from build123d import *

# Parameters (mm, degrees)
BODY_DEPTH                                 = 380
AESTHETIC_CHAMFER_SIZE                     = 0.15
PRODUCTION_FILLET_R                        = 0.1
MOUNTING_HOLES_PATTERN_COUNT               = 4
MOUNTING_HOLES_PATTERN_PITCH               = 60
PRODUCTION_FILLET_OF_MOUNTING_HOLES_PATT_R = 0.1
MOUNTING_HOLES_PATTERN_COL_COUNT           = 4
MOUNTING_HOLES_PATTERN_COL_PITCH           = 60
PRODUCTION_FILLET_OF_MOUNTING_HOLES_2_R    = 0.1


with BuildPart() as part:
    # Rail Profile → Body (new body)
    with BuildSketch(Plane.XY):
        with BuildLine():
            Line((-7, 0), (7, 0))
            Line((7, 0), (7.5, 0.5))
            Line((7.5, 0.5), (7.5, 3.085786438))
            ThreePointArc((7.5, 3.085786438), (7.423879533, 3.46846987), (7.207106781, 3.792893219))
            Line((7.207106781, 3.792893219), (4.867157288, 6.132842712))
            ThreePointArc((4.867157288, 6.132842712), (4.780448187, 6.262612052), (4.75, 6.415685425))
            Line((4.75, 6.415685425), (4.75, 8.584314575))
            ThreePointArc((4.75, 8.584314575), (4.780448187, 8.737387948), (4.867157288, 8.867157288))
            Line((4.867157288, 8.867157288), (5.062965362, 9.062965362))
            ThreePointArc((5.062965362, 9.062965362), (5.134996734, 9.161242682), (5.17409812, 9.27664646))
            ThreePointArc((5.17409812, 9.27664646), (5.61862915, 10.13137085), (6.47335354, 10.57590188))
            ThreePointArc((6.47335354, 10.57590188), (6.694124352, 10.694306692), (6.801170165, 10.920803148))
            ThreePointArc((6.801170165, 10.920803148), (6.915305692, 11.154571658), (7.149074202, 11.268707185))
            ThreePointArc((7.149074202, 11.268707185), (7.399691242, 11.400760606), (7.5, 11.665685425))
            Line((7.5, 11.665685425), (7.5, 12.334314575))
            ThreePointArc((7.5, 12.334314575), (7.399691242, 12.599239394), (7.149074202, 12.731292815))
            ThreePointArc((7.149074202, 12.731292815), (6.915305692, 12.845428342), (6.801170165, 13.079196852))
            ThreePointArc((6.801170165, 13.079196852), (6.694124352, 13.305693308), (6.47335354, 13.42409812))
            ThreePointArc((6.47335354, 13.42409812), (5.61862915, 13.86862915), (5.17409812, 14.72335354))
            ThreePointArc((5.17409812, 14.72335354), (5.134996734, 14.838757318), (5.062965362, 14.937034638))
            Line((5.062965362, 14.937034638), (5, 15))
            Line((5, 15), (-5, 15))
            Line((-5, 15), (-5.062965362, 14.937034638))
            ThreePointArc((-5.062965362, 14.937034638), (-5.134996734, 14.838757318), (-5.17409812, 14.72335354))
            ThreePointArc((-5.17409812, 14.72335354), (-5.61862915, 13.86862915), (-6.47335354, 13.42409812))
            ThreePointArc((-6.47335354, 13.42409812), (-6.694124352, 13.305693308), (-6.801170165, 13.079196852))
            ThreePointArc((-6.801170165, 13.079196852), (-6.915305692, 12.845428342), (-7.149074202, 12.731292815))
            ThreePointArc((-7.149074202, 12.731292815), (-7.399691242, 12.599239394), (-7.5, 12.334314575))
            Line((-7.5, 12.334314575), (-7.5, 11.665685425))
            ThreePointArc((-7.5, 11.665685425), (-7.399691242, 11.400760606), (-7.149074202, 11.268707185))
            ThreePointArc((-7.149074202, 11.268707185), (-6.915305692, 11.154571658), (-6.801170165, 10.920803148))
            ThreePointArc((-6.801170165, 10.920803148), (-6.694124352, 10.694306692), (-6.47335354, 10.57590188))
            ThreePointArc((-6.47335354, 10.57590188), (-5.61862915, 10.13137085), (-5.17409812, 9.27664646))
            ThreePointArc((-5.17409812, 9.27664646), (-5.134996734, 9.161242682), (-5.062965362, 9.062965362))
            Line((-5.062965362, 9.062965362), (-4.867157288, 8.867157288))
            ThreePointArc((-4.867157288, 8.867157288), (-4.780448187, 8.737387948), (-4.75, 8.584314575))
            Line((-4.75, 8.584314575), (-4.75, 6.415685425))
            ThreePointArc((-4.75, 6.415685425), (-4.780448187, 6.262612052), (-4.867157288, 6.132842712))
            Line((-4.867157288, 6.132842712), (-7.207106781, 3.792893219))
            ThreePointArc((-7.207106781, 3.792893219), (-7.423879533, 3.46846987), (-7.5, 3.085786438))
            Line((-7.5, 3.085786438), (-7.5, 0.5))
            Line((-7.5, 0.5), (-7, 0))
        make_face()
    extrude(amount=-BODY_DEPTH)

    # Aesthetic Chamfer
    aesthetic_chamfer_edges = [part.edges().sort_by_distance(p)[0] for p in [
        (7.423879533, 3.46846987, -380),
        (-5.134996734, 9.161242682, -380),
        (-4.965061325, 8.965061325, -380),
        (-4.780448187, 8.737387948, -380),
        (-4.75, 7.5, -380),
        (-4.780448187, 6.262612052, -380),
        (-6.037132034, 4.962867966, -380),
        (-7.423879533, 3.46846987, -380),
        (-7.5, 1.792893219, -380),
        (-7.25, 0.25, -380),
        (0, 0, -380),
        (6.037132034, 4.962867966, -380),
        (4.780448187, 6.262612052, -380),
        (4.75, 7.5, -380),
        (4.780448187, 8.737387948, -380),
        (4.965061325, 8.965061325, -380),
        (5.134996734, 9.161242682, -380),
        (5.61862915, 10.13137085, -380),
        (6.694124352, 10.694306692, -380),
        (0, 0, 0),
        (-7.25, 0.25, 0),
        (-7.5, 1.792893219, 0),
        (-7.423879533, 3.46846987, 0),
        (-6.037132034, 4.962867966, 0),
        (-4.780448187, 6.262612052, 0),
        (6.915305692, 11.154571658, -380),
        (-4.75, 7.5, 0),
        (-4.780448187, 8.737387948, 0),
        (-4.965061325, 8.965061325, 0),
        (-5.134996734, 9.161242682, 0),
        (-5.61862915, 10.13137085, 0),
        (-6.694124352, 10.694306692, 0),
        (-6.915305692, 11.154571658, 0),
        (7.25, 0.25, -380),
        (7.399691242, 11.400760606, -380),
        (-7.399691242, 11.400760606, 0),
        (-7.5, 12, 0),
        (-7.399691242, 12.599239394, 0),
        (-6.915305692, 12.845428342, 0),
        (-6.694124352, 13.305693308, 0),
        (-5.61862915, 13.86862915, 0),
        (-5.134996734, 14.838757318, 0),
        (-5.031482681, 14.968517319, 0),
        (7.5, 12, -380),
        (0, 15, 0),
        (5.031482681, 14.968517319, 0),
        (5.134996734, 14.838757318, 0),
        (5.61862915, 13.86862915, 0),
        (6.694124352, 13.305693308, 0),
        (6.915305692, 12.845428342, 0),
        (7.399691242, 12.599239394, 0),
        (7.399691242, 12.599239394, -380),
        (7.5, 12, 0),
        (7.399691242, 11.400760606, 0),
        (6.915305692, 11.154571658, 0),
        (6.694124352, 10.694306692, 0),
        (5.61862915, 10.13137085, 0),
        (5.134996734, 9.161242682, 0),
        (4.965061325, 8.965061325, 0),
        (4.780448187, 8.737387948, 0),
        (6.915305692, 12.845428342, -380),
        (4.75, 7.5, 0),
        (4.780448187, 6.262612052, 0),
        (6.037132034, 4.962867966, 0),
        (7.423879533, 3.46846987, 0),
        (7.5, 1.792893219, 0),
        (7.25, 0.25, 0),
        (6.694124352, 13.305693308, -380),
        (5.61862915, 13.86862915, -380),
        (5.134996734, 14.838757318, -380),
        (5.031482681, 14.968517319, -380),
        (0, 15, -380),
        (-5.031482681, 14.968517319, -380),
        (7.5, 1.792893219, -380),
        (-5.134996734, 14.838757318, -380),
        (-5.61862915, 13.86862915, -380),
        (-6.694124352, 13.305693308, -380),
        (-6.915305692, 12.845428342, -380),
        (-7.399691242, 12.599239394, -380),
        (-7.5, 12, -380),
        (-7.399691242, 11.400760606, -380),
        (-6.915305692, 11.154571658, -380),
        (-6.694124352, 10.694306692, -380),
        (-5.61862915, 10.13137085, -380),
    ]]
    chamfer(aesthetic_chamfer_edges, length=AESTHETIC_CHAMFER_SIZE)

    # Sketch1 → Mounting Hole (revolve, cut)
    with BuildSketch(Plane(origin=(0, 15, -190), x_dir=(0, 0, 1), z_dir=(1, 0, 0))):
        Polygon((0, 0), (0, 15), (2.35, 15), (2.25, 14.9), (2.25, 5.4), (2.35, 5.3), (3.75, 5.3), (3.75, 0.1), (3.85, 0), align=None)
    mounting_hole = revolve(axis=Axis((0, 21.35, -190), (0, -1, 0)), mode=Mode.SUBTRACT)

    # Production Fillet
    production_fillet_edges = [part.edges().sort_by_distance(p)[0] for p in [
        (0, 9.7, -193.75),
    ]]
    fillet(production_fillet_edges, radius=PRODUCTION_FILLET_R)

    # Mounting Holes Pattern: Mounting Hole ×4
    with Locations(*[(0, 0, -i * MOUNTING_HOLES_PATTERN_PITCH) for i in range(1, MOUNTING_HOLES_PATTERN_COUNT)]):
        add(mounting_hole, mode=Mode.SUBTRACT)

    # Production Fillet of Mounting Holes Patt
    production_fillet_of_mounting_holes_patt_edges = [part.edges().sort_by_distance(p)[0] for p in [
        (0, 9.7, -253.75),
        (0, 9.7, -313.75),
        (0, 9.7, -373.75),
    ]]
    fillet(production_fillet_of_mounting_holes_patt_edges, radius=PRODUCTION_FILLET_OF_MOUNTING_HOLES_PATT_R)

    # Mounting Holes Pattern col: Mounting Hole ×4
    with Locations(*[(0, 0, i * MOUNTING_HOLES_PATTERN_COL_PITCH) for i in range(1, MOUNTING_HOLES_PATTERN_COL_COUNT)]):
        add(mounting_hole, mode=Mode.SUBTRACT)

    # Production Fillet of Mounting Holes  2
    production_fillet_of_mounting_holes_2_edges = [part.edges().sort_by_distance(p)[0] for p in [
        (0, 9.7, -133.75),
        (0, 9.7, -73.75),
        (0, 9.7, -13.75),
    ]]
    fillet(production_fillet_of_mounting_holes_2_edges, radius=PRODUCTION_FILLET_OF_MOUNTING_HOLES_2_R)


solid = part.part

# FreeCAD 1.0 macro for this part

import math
import FreeCAD as App
import Part
import Sketcher
from FreeCAD import Vector
Q = App.Units.Quantity


def edges_at(feature, points):
    """Names of the edges that pass closest to the given points."""
    edges = feature.Shape.Edges
    near = lambda p: min(range(len(edges)), key=lambda i: edges[i].distToShape(Part.Vertex(*p))[0])
    return sorted({f"Edge{near(p) + 1}" for p in points})


def add_polygon(sketch, points):
    """Adds a closed chain of lines whose ends are joined by coincident constraints."""
    first, n = sketch.GeometryCount, len(points)
    for a, b in zip(points, points[1:] + points[:1]):
        sketch.addGeometry(Part.LineSegment(App.Vector(*a, 0), App.Vector(*b, 0)), False)
    for i in range(n):
        sketch.addConstraint(Sketcher.Constraint("Coincident", first + i, 2, first + (i + 1) % n, 1))

doc = App.newDocument("Part")
params = doc.addObject("Spreadsheet::Sheet", "Params")
for row, (alias, value) in enumerate([
    ("sketch1_radius", "1 mm"),
    ("sketch1_radius2", "0.4 mm"),
    ("sketch1_radius3", "1.6 mm"),
    ("sketch1_width", "14 mm"),
    ("sketch1_width2", "10 mm"),
    ("pad1_length", "380 mm"),
    ("chamfer_size", "0.15 mm"),
    ("sketch2_width", "15 mm"),
    ("sketch2_width2", "5.2 mm"),
    ("sketch2_width3", "9.5 mm"),
    ("sketch2_height", "1.4 mm"),
    ("sketch2_height2", "3.85 mm"),
    ("groove_angle", "360 deg"),
    ("fillet_radius", "0.1 mm"),
    ("linearpattern_pitch", "60 mm"),
    ("fillet2_radius", "0.1 mm"),
    ("linearpattern2_pitch", "60 mm"),
    ("fillet3_radius", "0.1 mm"),
], start=1):
    params.set(f"A{row}", alias)
    params.set(f"B{row}", "=" + value)
    params.setAlias(f"B{row}", alias)

body = doc.addObject("PartDesign::Body", "Body")

sketch1 = doc.addObject("Sketcher::SketchObject", "Sketch")
body.addObject(sketch1)
sketch1.AttachmentSupport = (doc.XY_Plane, [""])
sketch1.MapMode = "FlatFace"
sketch1.addGeometry(Part.LineSegment(Vector(-7, 0, 0), Vector(7, 0, 0)), False)
sketch1.addGeometry(Part.LineSegment(Vector(7, 0, 0), Vector(7.5, 0.5, 0)), False)
sketch1.addGeometry(Part.LineSegment(Vector(7.5, 0.5, 0), Vector(7.5, 3.085786, 0)), False)
sketch1.addGeometry(Part.ArcOfCircle(Part.Circle(Vector(6.5, 3.085786, 0), Vector(0, 0, 1), 1), math.radians(0), math.radians(45)), False)
sketch1.addGeometry(Part.LineSegment(Vector(7.207107, 3.792893, 0), Vector(4.867157, 6.132843, 0)), False)
sketch1.addGeometry(Part.ArcOfCircle(Part.Circle(Vector(5.15, 6.415685, 0), Vector(0, 0, 1), 0.4), math.radians(180), math.radians(225)), False)
sketch1.addGeometry(Part.LineSegment(Vector(4.75, 6.415685, 0), Vector(4.75, 8.584315, 0)), False)
sketch1.addGeometry(Part.ArcOfCircle(Part.Circle(Vector(5.15, 8.584315, 0), Vector(0, 0, 1), 0.4), math.radians(135), math.radians(180)), False)
sketch1.addGeometry(Part.LineSegment(Vector(4.867157, 8.867157, 0), Vector(5.062965, 9.062965, 0)), False)
sketch1.addGeometry(Part.ArcOfCircle(Part.Circle(Vector(4.780123, 9.345808, 0), Vector(0, 0, 1), 0.4), math.radians(-45), math.radians(-9.956709)), False)
sketch1.addGeometry(Part.ArcOfCircle(Part.Circle(Vector(6.75, 9, 0), Vector(0, 0, 1), 1.6), math.radians(99.956709), math.radians(170.043291)), False)
sketch1.addGeometry(Part.ArcOfCircle(Part.Circle(Vector(6.404192, 10.969877, 0), Vector(0, 0, 1), 0.4), math.radians(-80.043291), math.radians(-7.047116)), False)
sketch1.addGeometry(Part.ArcOfCircle(Part.Circle(Vector(7.198148, 10.871729, 0), Vector(0, 0, 1), 0.4), math.radians(97.047116), math.radians(172.952884)), False)
sketch1.addGeometry(Part.ArcOfCircle(Part.Circle(Vector(7.1, 11.665685, 0), Vector(0, 0, 1), 0.4), math.radians(-82.952884), math.radians(0)), False)
sketch1.addGeometry(Part.LineSegment(Vector(7.5, 11.665685, 0), Vector(7.5, 12.334315, 0)), False)
sketch1.addGeometry(Part.ArcOfCircle(Part.Circle(Vector(7.1, 12.334315, 0), Vector(0, 0, 1), 0.4), math.radians(0), math.radians(82.952884)), False)
sketch1.addGeometry(Part.ArcOfCircle(Part.Circle(Vector(7.198148, 13.128271, 0), Vector(0, 0, 1), 0.4), math.radians(-172.952884), math.radians(-97.047116)), False)
sketch1.addGeometry(Part.ArcOfCircle(Part.Circle(Vector(6.404192, 13.030123, 0), Vector(0, 0, 1), 0.4), math.radians(7.047116), math.radians(80.043291)), False)
sketch1.addGeometry(Part.ArcOfCircle(Part.Circle(Vector(6.75, 15, 0), Vector(0, 0, 1), 1.6), math.radians(-170.043291), math.radians(-99.956709)), False)
sketch1.addGeometry(Part.ArcOfCircle(Part.Circle(Vector(4.780123, 14.654192, 0), Vector(0, 0, 1), 0.4), math.radians(9.956709), math.radians(45)), False)
sketch1.addGeometry(Part.LineSegment(Vector(5.062965, 14.937035, 0), Vector(5, 15, 0)), False)
sketch1.addGeometry(Part.LineSegment(Vector(5, 15, 0), Vector(-5, 15, 0)), False)
sketch1.addGeometry(Part.LineSegment(Vector(-5, 15, 0), Vector(-5.062965, 14.937035, 0)), False)
sketch1.addGeometry(Part.ArcOfCircle(Part.Circle(Vector(-4.780123, 14.654192, 0), Vector(0, 0, 1), 0.4), math.radians(135), math.radians(170.043291)), False)
sketch1.addGeometry(Part.ArcOfCircle(Part.Circle(Vector(-6.75, 15, 0), Vector(0, 0, 1), 1.6), math.radians(-80.043291), math.radians(-9.956709)), False)
sketch1.addGeometry(Part.ArcOfCircle(Part.Circle(Vector(-6.404192, 13.030123, 0), Vector(0, 0, 1), 0.4), math.radians(99.956709), math.radians(172.952884)), False)
sketch1.addGeometry(Part.ArcOfCircle(Part.Circle(Vector(-7.198148, 13.128271, 0), Vector(0, 0, 1), 0.4), math.radians(-82.952884), math.radians(-7.047116)), False)
sketch1.addGeometry(Part.ArcOfCircle(Part.Circle(Vector(-7.1, 12.334315, 0), Vector(0, 0, 1), 0.4), math.radians(97.047116), math.radians(180)), False)
sketch1.addGeometry(Part.LineSegment(Vector(-7.5, 12.334315, 0), Vector(-7.5, 11.665685, 0)), False)
sketch1.addGeometry(Part.ArcOfCircle(Part.Circle(Vector(-7.1, 11.665685, 0), Vector(0, 0, 1), 0.4), math.radians(180), math.radians(262.952884)), False)
sketch1.addGeometry(Part.ArcOfCircle(Part.Circle(Vector(-7.198148, 10.871729, 0), Vector(0, 0, 1), 0.4), math.radians(7.047116), math.radians(82.952884)), False)
sketch1.addGeometry(Part.ArcOfCircle(Part.Circle(Vector(-6.404192, 10.969877, 0), Vector(0, 0, 1), 0.4), math.radians(-172.952884), math.radians(-99.956709)), False)
sketch1.addGeometry(Part.ArcOfCircle(Part.Circle(Vector(-6.75, 9, 0), Vector(0, 0, 1), 1.6), math.radians(9.956709), math.radians(80.043291)), False)
sketch1.addGeometry(Part.ArcOfCircle(Part.Circle(Vector(-4.780123, 9.345808, 0), Vector(0, 0, 1), 0.4), math.radians(-170.043291), math.radians(-135)), False)
sketch1.addGeometry(Part.LineSegment(Vector(-5.062965, 9.062965, 0), Vector(-4.867157, 8.867157, 0)), False)
sketch1.addGeometry(Part.ArcOfCircle(Part.Circle(Vector(-5.15, 8.584315, 0), Vector(0, 0, 1), 0.4), math.radians(0), math.radians(45)), False)
sketch1.addGeometry(Part.LineSegment(Vector(-4.75, 8.584315, 0), Vector(-4.75, 6.415685, 0)), False)
sketch1.addGeometry(Part.ArcOfCircle(Part.Circle(Vector(-5.15, 6.415685, 0), Vector(0, 0, 1), 0.4), math.radians(-45), math.radians(0)), False)
sketch1.addGeometry(Part.LineSegment(Vector(-4.867157, 6.132843, 0), Vector(-7.207107, 3.792893, 0)), False)
sketch1.addGeometry(Part.ArcOfCircle(Part.Circle(Vector(-6.5, 3.085786, 0), Vector(0, 0, 1), 1), math.radians(135), math.radians(180)), False)
sketch1.addGeometry(Part.LineSegment(Vector(-7.5, 3.085786, 0), Vector(-7.5, 0.5, 0)), False)
sketch1.addGeometry(Part.LineSegment(Vector(-7.5, 0.5, 0), Vector(-7, 0, 0)), False)
sketch1.addConstraint(Sketcher.Constraint("Coincident", 0, 2, 1, 1))
sketch1.addConstraint(Sketcher.Constraint("Coincident", 1, 2, 2, 1))
sketch1.addConstraint(Sketcher.Constraint("Tangent", 2, 2, 3, 1))
sketch1.addConstraint(Sketcher.Constraint("Tangent", 3, 2, 4, 1))
sketch1.addConstraint(Sketcher.Constraint("Tangent", 4, 2, 5, 2))
sketch1.addConstraint(Sketcher.Constraint("Tangent", 5, 1, 6, 1))
sketch1.addConstraint(Sketcher.Constraint("Tangent", 6, 2, 7, 2))
sketch1.addConstraint(Sketcher.Constraint("Tangent", 7, 1, 8, 1))
sketch1.addConstraint(Sketcher.Constraint("Tangent", 8, 2, 9, 1))
sketch1.addConstraint(Sketcher.Constraint("Tangent", 9, 2, 10, 2))
sketch1.addConstraint(Sketcher.Constraint("Tangent", 10, 1, 11, 1))
sketch1.addConstraint(Sketcher.Constraint("Tangent", 11, 2, 12, 2))
sketch1.addConstraint(Sketcher.Constraint("Tangent", 12, 1, 13, 1))
sketch1.addConstraint(Sketcher.Constraint("Tangent", 13, 2, 14, 1))
sketch1.addConstraint(Sketcher.Constraint("Tangent", 14, 2, 15, 1))
sketch1.addConstraint(Sketcher.Constraint("Tangent", 15, 2, 16, 2))
sketch1.addConstraint(Sketcher.Constraint("Tangent", 16, 1, 17, 1))
sketch1.addConstraint(Sketcher.Constraint("Tangent", 17, 2, 18, 2))
sketch1.addConstraint(Sketcher.Constraint("Tangent", 18, 1, 19, 1))
sketch1.addConstraint(Sketcher.Constraint("Tangent", 19, 2, 20, 1))
sketch1.addConstraint(Sketcher.Constraint("Coincident", 20, 2, 21, 1))
sketch1.addConstraint(Sketcher.Constraint("Coincident", 21, 2, 22, 1))
sketch1.addConstraint(Sketcher.Constraint("Tangent", 22, 2, 23, 1))
sketch1.addConstraint(Sketcher.Constraint("Tangent", 23, 2, 24, 2))
sketch1.addConstraint(Sketcher.Constraint("Tangent", 24, 1, 25, 1))
sketch1.addConstraint(Sketcher.Constraint("Tangent", 25, 2, 26, 2))
sketch1.addConstraint(Sketcher.Constraint("Tangent", 26, 1, 27, 1))
sketch1.addConstraint(Sketcher.Constraint("Tangent", 27, 2, 28, 1))
sketch1.addConstraint(Sketcher.Constraint("Tangent", 28, 2, 29, 1))
sketch1.addConstraint(Sketcher.Constraint("Tangent", 29, 2, 30, 2))
sketch1.addConstraint(Sketcher.Constraint("Tangent", 30, 1, 31, 1))
sketch1.addConstraint(Sketcher.Constraint("Tangent", 31, 2, 32, 2))
sketch1.addConstraint(Sketcher.Constraint("Tangent", 32, 1, 33, 1))
sketch1.addConstraint(Sketcher.Constraint("Tangent", 33, 2, 34, 1))
sketch1.addConstraint(Sketcher.Constraint("Tangent", 34, 2, 35, 2))
sketch1.addConstraint(Sketcher.Constraint("Tangent", 35, 1, 36, 1))
sketch1.addConstraint(Sketcher.Constraint("Tangent", 36, 2, 37, 2))
sketch1.addConstraint(Sketcher.Constraint("Tangent", 37, 1, 38, 1))
sketch1.addConstraint(Sketcher.Constraint("Tangent", 38, 2, 39, 1))
sketch1.addConstraint(Sketcher.Constraint("Tangent", 39, 2, 40, 1))
sketch1.addConstraint(Sketcher.Constraint("Coincident", 40, 2, 41, 1))
sketch1.addConstraint(Sketcher.Constraint("Coincident", 41, 2, 0, 1))
sketch1.addConstraint(Sketcher.Constraint("Horizontal", 0))
sketch1.addConstraint(Sketcher.Constraint("Vertical", 2))
sketch1.addConstraint(Sketcher.Constraint("Vertical", 6))
sketch1.addConstraint(Sketcher.Constraint("Vertical", 14))
sketch1.addConstraint(Sketcher.Constraint("Horizontal", 21))
sketch1.addConstraint(Sketcher.Constraint("Vertical", 28))
sketch1.addConstraint(Sketcher.Constraint("Vertical", 36))
sketch1.addConstraint(Sketcher.Constraint("Vertical", 40))
sketch1.addConstraint(Sketcher.Constraint("Equal", 5, 7))
sketch1.addConstraint(Sketcher.Constraint("Equal", 7, 9))
sketch1.addConstraint(Sketcher.Constraint("Equal", 9, 11))
sketch1.addConstraint(Sketcher.Constraint("Equal", 11, 12))
sketch1.addConstraint(Sketcher.Constraint("Equal", 12, 13))
sketch1.addConstraint(Sketcher.Constraint("Equal", 13, 15))
sketch1.addConstraint(Sketcher.Constraint("Equal", 15, 16))
sketch1.addConstraint(Sketcher.Constraint("Equal", 16, 17))
sketch1.addConstraint(Sketcher.Constraint("Equal", 10, 18))
sketch1.addConstraint(Sketcher.Constraint("Equal", 17, 19))
sketch1.addConstraint(Sketcher.Constraint("Equal", 19, 23))
sketch1.addConstraint(Sketcher.Constraint("Equal", 18, 24))
sketch1.addConstraint(Sketcher.Constraint("Equal", 23, 25))
sketch1.addConstraint(Sketcher.Constraint("Equal", 25, 26))
sketch1.addConstraint(Sketcher.Constraint("Equal", 26, 27))
sketch1.addConstraint(Sketcher.Constraint("Equal", 27, 29))
sketch1.addConstraint(Sketcher.Constraint("Equal", 29, 30))
sketch1.addConstraint(Sketcher.Constraint("Equal", 30, 31))
sketch1.addConstraint(Sketcher.Constraint("Equal", 24, 32))
sketch1.addConstraint(Sketcher.Constraint("Equal", 31, 33))
sketch1.addConstraint(Sketcher.Constraint("Equal", 33, 35))
sketch1.addConstraint(Sketcher.Constraint("Equal", 35, 37))
sketch1.addConstraint(Sketcher.Constraint("Equal", 3, 39))
sketch1.addConstraint(Sketcher.Constraint("Symmetric", 0, 2, 41, 2, -1, 1))
sketch1.addConstraint(Sketcher.Constraint("Symmetric", 19, 3, 23, 3, -2))
sketch1.addConstraint(Sketcher.Constraint("Symmetric", 17, 3, 25, 3, -2))
sketch1.addConstraint(Sketcher.Constraint("Symmetric", 15, 3, 27, 3, -2))
sketch1.addConstraint(Sketcher.Constraint("Symmetric", 12, 3, 30, 3, -2))
sketch1.addConstraint(Sketcher.Constraint("Symmetric", 10, 3, 32, 3, -2))
sketch1.addConstraint(Sketcher.Constraint("Symmetric", 7, 3, 35, 3, -2))
sketch1.addConstraint(Sketcher.Constraint("Symmetric", 3, 3, 39, 3, -2))
sketch1.addConstraint(Sketcher.Constraint("Perpendicular", 1, 4))
sketch1.addConstraint(Sketcher.Constraint("Perpendicular", 4, 8))
sketch1.addConstraint(Sketcher.Constraint("Perpendicular", 8, 20))
sketch1.addConstraint(Sketcher.Constraint("Perpendicular", 20, 22))
sketch1.addConstraint(Sketcher.Constraint("Perpendicular", 22, 34))
sketch1.addConstraint(Sketcher.Constraint("Perpendicular", 34, 38))
sketch1.addConstraint(Sketcher.Constraint("Perpendicular", 38, 41))
sketch1.addConstraint(Sketcher.Constraint("Horizontal", 9, 3, 33, 3))
sketch1.addConstraint(Sketcher.Constraint("Horizontal", 24, 3, 20, 2))
sketch1.addConstraint(Sketcher.Constraint("Vertical", 12, 3, 16, 3))
sketch1.addConstraint(Sketcher.Constraint("Vertical", 11, 3, 17, 3))
sketch1.addConstraint(Sketcher.Constraint("Vertical", 10, 3, 18, 3))
sketch1.addConstraint(Sketcher.Constraint("Vertical", 9, 3, 19, 3))
sketch1.addConstraint(Sketcher.Constraint("Vertical", 2, 2, 13, 2))
sketch1.addConstraint(Sketcher.Constraint("Radius", 3, Q("1 mm")))
sketch1.addConstraint(Sketcher.Constraint("Radius", 5, Q("0.4 mm")))
sketch1.addConstraint(Sketcher.Constraint("Radius", 10, Q("1.6 mm")))
sketch1.addConstraint(Sketcher.Constraint("DistanceX", 0, 1, 0, 2, Q("14 mm")))
sketch1.addConstraint(Sketcher.Constraint("DistanceX", 21, 2, 21, 1, Q("10 mm")))
sketch1.addConstraint(Sketcher.Constraint("DistanceY", -1, 1, 10, 3, Q("9 mm")))
sketch1.addConstraint(Sketcher.Constraint("DistanceY", -1, 1, 18, 3, Q("15 mm")))
sketch1.addConstraint(Sketcher.Constraint("DistanceX", -1, 1, 3, 3, Q("6.5 mm")))
sketch1.addConstraint(Sketcher.Constraint("DistanceX", -1, 1, 5, 3, Q("5.15 mm")))
sketch1.addConstraint(Sketcher.Constraint("DistanceX", -1, 1, 10, 3, Q("6.75 mm")))
sketch1.addConstraint(Sketcher.Constraint("DistanceY", 6, 1, 6, 2, Q("2.168629 mm")))
sketch1.addConstraint(Sketcher.Constraint("DistanceY", 14, 1, 14, 2, Q("0.668629 mm")))
sketch1.addConstraint(Sketcher.Constraint("DistanceY", -1, 1, 10, 1, Q("10.575902 mm")))
sketch1.setExpression("Constraints[95]", "Params.sketch1_radius")
sketch1.setExpression("Constraints[96]", "Params.sketch1_radius2")
sketch1.setExpression("Constraints[97]", "Params.sketch1_radius3")
sketch1.setExpression("Constraints[98]", "Params.sketch1_width")
sketch1.setExpression("Constraints[99]", "Params.sketch1_width2")
pad1 = doc.addObject("PartDesign::Pad", "Pad")
body.addObject(pad1)
pad1.Profile = sketch1
pad1.setExpression("Length", "Params.pad1_length")
pad1.Reversed = True
doc.recompute()

chamfer = doc.addObject("PartDesign::Chamfer", "Chamfer")
body.addObject(chamfer)
chamfer.Base = (pad1, edges_at(pad1, [
    (7.424, 3.468, -380),
    (-5.135, 9.161, -380),
    (-4.965, 8.965, -380),
    (-4.78, 8.737, -380),
    (-4.75, 7.5, -380),
    (-4.78, 6.263, -380),
    (-6.037, 4.963, -380),
    (-7.424, 3.468, -380),
    (-7.5, 1.793, -380),
    (-7.25, 0.25, -380),
    (0, 0, -380),
    (6.037, 4.963, -380),
    (4.78, 6.263, -380),
    (4.75, 7.5, -380),
    (4.78, 8.737, -380),
    (4.965, 8.965, -380),
    (5.135, 9.161, -380),
    (5.619, 10.131, -380),
    (6.694, 10.694, -380),
    (0, 0, 0),
    (-7.25, 0.25, 0),
    (-7.5, 1.793, 0),
    (-7.424, 3.468, 0),
    (-6.037, 4.963, 0),
    (-4.78, 6.263, 0),
    (6.915, 11.155, -380),
    (-4.75, 7.5, 0),
    (-4.78, 8.737, 0),
    (-4.965, 8.965, 0),
    (-5.135, 9.161, 0),
    (-5.619, 10.131, 0),
    (-6.694, 10.694, 0),
    (-6.915, 11.155, 0),
    (7.25, 0.25, -380),
    (7.4, 11.401, -380),
    (-7.4, 11.401, 0),
    (-7.5, 12, 0),
    (-7.4, 12.599, 0),
    (-6.915, 12.845, 0),
    (-6.694, 13.306, 0),
    (-5.619, 13.869, 0),
    (-5.135, 14.839, 0),
    (-5.031, 14.969, 0),
    (7.5, 12, -380),
    (0, 15, 0),
    (5.031, 14.969, 0),
    (5.135, 14.839, 0),
    (5.619, 13.869, 0),
    (6.694, 13.306, 0),
    (6.915, 12.845, 0),
    (7.4, 12.599, 0),
    (7.4, 12.599, -380),
    (7.5, 12, 0),
    (7.4, 11.401, 0),
    (6.915, 11.155, 0),
    (6.694, 10.694, 0),
    (5.619, 10.131, 0),
    (5.135, 9.161, 0),
    (4.965, 8.965, 0),
    (4.78, 8.737, 0),
    (6.915, 12.845, -380),
    (4.75, 7.5, 0),
    (4.78, 6.263, 0),
    (6.037, 4.963, 0),
    (7.424, 3.468, 0),
    (7.5, 1.793, 0),
    (7.25, 0.25, 0),
    (6.694, 13.306, -380),
    (5.619, 13.869, -380),
    (5.135, 14.839, -380),
    (5.031, 14.969, -380),
    (0, 15, -380),
    (-5.031, 14.969, -380),
    (7.5, 1.793, -380),
    (-5.135, 14.839, -380),
    (-5.619, 13.869, -380),
    (-6.694, 13.306, -380),
    (-6.915, 12.845, -380),
    (-7.4, 12.599, -380),
    (-7.5, 12, -380),
    (-7.4, 11.401, -380),
    (-6.915, 11.155, -380),
    (-6.694, 10.694, -380),
    (-5.619, 10.131, -380),
]))
chamfer.setExpression("Size", "Params.chamfer_size")

sketch2 = doc.addObject("Sketcher::SketchObject", "Sketch001")
body.addObject(sketch2)
sketch2.AttachmentSupport = (doc.YZ_Plane, [""])
sketch2.MapMode = "FlatFace"
add_polygon(sketch2, [(0, -190), (15, -190), (15, -186.15), (14.9, -186.25), (9.7, -186.25), (9.7, -187.65), (9.6, -187.75), (0.1, -187.75), (0, -187.65)])
sketch2.addGeometry(Part.LineSegment(Vector(15, -190, 0), Vector(0, -190, 0)), True)
sketch2.addConstraint(Sketcher.Constraint("Horizontal", 0))
sketch2.addConstraint(Sketcher.Constraint("Vertical", 1))
sketch2.addConstraint(Sketcher.Constraint("Horizontal", 3))
sketch2.addConstraint(Sketcher.Constraint("Vertical", 4))
sketch2.addConstraint(Sketcher.Constraint("Horizontal", 6))
sketch2.addConstraint(Sketcher.Constraint("Vertical", 8))
sketch2.addConstraint(Sketcher.Constraint("Horizontal", 9))
sketch2.addConstraint(Sketcher.Constraint("Coincident", 9, 1, 0, 2))
sketch2.addConstraint(Sketcher.Constraint("PointOnObject", 7, 2, -2))
sketch2.addConstraint(Sketcher.Constraint("PointOnObject", 9, 2, -2))
sketch2.addConstraint(Sketcher.Constraint("Parallel", 2, 5))
sketch2.addConstraint(Sketcher.Constraint("Perpendicular", 5, 7))
sketch2.addConstraint(Sketcher.Constraint("Horizontal", 4, 2, 7, 2))
sketch2.addConstraint(Sketcher.Constraint("Equal", 2, 5))
sketch2.addConstraint(Sketcher.Constraint("Equal", 5, 7))
sketch2.addConstraint(Sketcher.Constraint("DistanceX", 0, 1, 0, 2, Q("15 mm")))
sketch2.addConstraint(Sketcher.Constraint("DistanceX", 3, 2, 3, 1, Q("5.2 mm")))
sketch2.addConstraint(Sketcher.Constraint("DistanceX", 6, 2, 6, 1, Q("9.5 mm")))
sketch2.addConstraint(Sketcher.Constraint("DistanceY", 4, 2, 4, 1, Q("1.4 mm")))
sketch2.addConstraint(Sketcher.Constraint("DistanceY", 0, 2, -1, 1, Q("190 mm")))
sketch2.addConstraint(Sketcher.Constraint("DistanceY", 1, 1, 1, 2, Q("3.85 mm")))
sketch2.setExpression("Constraints[24]", "Params.sketch2_width")
sketch2.setExpression("Constraints[25]", "Params.sketch2_width2")
sketch2.setExpression("Constraints[26]", "Params.sketch2_width3")
sketch2.setExpression("Constraints[27]", "Params.sketch2_height")
sketch2.setExpression("Constraints[29]", "Params.sketch2_height2")
groove = doc.addObject("PartDesign::Groove", "Groove")
body.addObject(groove)
groove.Profile = sketch2
groove.ReferenceAxis = (sketch2, ["Axis0"])
groove.setExpression("Angle", "Params.groove_angle")
doc.recompute()

fillet = doc.addObject("PartDesign::Fillet", "Fillet")
body.addObject(fillet)
fillet.Base = (groove, edges_at(groove, [(0, 9.7, -193.75)]))
fillet.setExpression("Radius", "Params.fillet_radius")
doc.recompute()

linearpattern = doc.addObject("PartDesign::LinearPattern", "LinearPattern")
body.addObject(linearpattern)
linearpattern.Originals = [groove]
linearpattern.Direction = (doc.Z_Axis, [""])
linearpattern.Mode = "offset"
linearpattern.setExpression("Offset", "Params.linearpattern_pitch")
linearpattern.Occurrences = 4
linearpattern.Reversed = True
body.Tip = linearpattern
doc.recompute()

fillet2 = doc.addObject("PartDesign::Fillet", "Fillet001")
body.addObject(fillet2)
fillet2.Base = (linearpattern, edges_at(linearpattern, [(0, 9.7, -253.75), (0, 9.7, -313.75), (0, 9.7, -373.75)]))
fillet2.setExpression("Radius", "Params.fillet2_radius")
doc.recompute()

linearpattern2 = doc.addObject("PartDesign::LinearPattern", "LinearPattern001")
body.addObject(linearpattern2)
linearpattern2.Originals = [groove]
linearpattern2.Direction = (doc.Z_Axis, [""])
linearpattern2.Mode = "offset"
linearpattern2.setExpression("Offset", "Params.linearpattern2_pitch")
linearpattern2.Occurrences = 4
body.Tip = linearpattern2
doc.recompute()

fillet3 = doc.addObject("PartDesign::Fillet", "Fillet002")
body.addObject(fillet3)
fillet3.Base = (linearpattern2, edges_at(linearpattern2, [(0, 9.7, -133.75), (0, 9.7, -73.75), (0, 9.7, -13.75)]))
fillet3.setExpression("Radius", "Params.fillet3_radius")

doc.recompute()
